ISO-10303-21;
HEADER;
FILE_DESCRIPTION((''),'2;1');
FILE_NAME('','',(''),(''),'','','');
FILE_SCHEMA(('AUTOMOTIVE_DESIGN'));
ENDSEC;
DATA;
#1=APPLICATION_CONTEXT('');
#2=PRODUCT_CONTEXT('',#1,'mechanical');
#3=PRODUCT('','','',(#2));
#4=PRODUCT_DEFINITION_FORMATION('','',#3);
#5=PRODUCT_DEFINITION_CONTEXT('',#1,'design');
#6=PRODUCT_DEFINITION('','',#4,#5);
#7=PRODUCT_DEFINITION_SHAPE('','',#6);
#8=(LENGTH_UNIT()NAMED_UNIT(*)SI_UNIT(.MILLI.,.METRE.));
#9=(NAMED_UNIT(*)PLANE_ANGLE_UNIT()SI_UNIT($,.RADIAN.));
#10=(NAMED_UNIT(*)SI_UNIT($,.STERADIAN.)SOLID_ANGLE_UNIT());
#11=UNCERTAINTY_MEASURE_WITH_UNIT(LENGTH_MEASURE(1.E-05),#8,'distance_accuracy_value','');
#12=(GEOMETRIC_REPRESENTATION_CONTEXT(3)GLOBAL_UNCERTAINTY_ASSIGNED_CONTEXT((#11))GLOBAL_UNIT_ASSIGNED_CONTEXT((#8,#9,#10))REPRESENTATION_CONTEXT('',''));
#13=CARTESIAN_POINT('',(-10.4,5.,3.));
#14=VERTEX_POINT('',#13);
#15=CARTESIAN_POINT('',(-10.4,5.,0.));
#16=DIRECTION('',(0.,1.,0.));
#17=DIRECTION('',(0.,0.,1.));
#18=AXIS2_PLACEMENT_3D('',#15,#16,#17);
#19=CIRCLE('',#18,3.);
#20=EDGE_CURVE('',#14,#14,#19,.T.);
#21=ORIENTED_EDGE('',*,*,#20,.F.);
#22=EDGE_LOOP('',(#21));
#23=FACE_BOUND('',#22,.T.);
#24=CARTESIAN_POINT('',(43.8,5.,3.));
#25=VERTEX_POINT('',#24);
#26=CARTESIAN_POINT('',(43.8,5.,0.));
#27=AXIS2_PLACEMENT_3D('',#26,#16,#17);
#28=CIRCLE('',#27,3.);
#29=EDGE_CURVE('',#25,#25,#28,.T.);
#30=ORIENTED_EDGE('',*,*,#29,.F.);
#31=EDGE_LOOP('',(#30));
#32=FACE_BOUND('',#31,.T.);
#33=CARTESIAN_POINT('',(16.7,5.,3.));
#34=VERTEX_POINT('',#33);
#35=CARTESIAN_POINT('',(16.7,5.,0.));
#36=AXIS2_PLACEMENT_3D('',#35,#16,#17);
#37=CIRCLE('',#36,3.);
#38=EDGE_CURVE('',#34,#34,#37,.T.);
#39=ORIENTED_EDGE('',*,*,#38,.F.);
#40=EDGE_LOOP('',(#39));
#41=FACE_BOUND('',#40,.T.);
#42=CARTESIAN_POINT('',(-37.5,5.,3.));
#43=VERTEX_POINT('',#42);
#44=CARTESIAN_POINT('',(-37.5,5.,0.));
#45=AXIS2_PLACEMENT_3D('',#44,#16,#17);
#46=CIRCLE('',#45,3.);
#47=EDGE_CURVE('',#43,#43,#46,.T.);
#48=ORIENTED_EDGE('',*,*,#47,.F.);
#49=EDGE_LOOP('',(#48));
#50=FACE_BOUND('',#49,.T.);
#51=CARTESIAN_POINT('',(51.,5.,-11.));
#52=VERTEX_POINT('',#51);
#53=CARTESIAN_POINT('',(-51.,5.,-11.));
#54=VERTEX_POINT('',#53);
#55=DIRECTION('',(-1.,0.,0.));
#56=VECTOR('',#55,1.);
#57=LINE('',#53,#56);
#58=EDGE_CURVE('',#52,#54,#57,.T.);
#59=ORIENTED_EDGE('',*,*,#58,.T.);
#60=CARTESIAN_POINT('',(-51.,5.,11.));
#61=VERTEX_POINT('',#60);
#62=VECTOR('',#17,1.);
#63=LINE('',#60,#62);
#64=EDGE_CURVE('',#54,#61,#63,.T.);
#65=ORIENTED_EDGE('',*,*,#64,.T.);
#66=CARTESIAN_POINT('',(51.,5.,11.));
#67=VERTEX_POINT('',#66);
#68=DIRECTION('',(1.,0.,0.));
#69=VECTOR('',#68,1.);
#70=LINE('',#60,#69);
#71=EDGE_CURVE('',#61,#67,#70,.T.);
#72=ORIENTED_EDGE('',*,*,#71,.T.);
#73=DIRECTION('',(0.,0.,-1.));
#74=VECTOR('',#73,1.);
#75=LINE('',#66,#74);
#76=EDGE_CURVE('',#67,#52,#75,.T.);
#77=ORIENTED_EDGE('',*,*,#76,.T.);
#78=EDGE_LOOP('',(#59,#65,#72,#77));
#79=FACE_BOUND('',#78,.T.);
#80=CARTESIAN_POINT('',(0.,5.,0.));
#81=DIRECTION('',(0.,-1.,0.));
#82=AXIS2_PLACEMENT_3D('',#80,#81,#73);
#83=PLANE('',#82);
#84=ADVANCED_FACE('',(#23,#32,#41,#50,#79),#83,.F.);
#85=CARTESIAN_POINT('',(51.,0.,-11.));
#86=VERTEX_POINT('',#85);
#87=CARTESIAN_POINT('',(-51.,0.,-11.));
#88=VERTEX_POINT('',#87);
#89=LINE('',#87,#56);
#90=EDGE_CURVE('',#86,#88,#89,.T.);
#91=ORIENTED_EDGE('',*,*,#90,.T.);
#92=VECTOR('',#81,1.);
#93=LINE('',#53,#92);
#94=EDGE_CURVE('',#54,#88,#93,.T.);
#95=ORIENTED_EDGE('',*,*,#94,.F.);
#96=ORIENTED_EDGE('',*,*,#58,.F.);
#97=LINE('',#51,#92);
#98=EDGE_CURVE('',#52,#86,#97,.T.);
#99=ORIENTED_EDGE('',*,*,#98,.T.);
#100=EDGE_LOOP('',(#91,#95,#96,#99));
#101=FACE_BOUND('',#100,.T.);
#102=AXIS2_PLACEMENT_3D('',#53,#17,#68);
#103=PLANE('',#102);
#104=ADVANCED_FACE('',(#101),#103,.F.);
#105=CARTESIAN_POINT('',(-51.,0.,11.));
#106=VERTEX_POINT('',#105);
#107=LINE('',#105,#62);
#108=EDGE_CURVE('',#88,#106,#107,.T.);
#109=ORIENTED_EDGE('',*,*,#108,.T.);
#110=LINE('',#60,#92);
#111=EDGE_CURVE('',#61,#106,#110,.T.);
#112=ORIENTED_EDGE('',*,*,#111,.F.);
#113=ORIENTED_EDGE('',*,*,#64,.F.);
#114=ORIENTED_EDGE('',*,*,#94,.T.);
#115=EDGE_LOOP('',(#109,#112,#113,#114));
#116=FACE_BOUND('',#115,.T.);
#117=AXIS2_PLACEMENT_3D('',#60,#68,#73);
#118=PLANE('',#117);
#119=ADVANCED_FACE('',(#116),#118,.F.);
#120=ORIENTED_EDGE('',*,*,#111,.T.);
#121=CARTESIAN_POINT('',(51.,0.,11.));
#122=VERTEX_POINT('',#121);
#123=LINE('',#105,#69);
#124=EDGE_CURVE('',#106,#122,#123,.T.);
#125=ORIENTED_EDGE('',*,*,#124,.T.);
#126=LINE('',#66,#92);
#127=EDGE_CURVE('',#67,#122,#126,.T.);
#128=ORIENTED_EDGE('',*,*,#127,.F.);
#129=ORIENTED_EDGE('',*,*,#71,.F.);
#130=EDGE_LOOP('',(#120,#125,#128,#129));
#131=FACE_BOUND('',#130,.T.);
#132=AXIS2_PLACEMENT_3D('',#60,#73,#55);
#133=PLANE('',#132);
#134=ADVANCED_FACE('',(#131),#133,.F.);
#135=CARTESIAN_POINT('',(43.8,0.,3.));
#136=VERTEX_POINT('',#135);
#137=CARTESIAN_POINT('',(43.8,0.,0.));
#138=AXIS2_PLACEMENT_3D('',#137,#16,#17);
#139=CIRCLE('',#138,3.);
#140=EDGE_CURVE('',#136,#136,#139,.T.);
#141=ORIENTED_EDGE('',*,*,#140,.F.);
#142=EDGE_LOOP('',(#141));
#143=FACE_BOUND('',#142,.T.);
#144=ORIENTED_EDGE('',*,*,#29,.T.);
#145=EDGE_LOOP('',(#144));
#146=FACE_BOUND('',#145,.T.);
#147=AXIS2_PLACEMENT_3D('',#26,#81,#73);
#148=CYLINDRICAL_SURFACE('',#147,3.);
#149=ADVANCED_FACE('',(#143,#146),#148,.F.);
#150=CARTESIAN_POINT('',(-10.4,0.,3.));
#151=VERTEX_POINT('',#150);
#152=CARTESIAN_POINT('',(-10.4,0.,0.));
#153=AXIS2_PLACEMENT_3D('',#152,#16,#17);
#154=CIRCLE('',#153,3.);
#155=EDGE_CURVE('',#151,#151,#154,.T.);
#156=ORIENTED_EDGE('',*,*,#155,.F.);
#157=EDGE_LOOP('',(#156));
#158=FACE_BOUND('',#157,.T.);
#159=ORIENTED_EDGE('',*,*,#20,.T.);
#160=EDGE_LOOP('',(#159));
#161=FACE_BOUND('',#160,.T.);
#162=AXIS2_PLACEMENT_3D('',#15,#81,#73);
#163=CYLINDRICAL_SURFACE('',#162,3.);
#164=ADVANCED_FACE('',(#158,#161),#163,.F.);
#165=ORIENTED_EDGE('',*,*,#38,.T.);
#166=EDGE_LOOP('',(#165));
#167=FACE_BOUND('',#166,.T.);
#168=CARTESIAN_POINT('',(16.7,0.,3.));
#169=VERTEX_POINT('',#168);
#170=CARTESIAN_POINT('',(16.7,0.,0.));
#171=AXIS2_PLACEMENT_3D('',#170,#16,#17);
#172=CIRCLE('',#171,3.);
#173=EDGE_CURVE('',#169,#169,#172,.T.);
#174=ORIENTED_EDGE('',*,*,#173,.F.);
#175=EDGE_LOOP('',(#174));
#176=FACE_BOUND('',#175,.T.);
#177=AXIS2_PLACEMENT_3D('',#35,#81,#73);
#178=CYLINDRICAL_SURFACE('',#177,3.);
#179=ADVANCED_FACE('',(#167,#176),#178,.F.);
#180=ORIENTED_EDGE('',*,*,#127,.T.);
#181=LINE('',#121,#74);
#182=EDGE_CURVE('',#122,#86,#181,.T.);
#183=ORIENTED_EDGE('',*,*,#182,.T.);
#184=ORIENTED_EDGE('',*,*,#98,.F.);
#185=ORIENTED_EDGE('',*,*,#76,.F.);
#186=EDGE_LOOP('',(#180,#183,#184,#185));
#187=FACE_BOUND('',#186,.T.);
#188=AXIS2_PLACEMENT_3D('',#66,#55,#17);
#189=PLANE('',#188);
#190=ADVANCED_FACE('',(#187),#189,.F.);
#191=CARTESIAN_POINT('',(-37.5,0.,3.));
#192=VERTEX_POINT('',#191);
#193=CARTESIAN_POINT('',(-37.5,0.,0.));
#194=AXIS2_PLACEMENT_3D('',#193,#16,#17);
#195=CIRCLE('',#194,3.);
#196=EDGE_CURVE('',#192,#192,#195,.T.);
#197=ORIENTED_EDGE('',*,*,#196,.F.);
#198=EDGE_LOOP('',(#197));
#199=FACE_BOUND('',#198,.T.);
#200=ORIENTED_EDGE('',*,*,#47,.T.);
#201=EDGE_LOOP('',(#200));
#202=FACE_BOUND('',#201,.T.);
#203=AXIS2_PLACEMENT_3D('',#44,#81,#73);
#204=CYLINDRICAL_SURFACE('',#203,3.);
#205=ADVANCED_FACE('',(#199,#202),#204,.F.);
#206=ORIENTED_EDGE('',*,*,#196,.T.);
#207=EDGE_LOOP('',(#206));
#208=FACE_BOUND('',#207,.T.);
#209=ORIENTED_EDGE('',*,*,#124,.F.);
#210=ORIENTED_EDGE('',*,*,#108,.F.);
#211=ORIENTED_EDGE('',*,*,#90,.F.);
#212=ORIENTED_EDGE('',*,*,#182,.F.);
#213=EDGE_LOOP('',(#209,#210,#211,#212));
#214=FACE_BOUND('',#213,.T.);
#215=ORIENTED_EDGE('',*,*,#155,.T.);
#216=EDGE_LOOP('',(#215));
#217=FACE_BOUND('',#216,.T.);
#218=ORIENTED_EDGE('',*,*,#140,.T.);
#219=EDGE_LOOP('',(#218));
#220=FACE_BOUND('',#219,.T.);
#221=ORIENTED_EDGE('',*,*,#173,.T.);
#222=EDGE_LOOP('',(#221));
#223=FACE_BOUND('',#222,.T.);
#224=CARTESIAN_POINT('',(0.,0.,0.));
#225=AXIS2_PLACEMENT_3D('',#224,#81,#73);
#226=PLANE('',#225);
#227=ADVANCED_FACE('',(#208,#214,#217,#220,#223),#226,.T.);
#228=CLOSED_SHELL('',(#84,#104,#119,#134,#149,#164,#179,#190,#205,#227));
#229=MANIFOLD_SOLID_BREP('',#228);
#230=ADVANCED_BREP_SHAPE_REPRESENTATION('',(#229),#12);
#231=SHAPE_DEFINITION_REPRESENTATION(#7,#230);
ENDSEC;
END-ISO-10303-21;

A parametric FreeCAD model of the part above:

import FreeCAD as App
import Part
import Sketcher

V = App.Vector


def add_polygon(sketch, points):
    """Adds a closed chain of lines whose ends are joined by coincident constraints."""
    first, n = sketch.GeometryCount, len(points)
    for a, b in zip(points, points[1:] + points[:1]):
        sketch.addGeometry(Part.LineSegment(App.Vector(*a, 0), App.Vector(*b, 0)), False)
    for i in range(n):
        sketch.addConstraint(Sketcher.Constraint("Coincident", first + i, 2, first + (i + 1) % n, 1))

doc = App.newDocument("Part")
body = doc.addObject("PartDesign::Body", "Body")

# Sketch on XZ plane
sketch1 = doc.addObject("Sketcher::SketchObject", "Sketch")
body.addObject(sketch1)
sketch1.AttachmentSupport = (doc.XZ_Plane, [""])
sketch1.MapMode = "FlatFace"
add_polygon(sketch1, [(-51, -11), (-51, 11), (51, 11), (51, -11)])  # lines 0-3
sketch1.addGeometry(Part.Circle(V(-37.5, 0, 0), V(0, 0, 1), 3), False)  # 4
sketch1.addGeometry(Part.Circle(V(-10.4, 0, 0), V(0, 0, 1), 3), False)  # 5
sketch1.addGeometry(Part.Circle(V(16.7, 0, 0), V(0, 0, 1), 3), False)  # 6
sketch1.addGeometry(Part.Circle(V(43.8, 0, 0), V(0, 0, 1), 3), False)  # 7
sketch1.addConstraint([
    Sketcher.Constraint("Vertical", 0),
    Sketcher.Constraint("Horizontal", 1),
    Sketcher.Constraint("Vertical", 2),
    Sketcher.Constraint("Horizontal", 3),
    Sketcher.Constraint("Equal", 4, 5),
    Sketcher.Constraint("Equal", 5, 6),
    Sketcher.Constraint("Equal", 6, 7),
    Sketcher.Constraint("Symmetric", 0, 2, 2, 2, -1, 1),
    Sketcher.Constraint("PointOnObject", 4, 3, -1),
    Sketcher.Constraint("PointOnObject", 5, 3, -1),
    Sketcher.Constraint("PointOnObject", 6, 3, -1),
    Sketcher.Constraint("PointOnObject", 7, 3, -1),
    Sketcher.Constraint("Diameter", 4, 6.0),
    Sketcher.Constraint("DistanceX", 1, 1, 1, 2, 102.0),
    Sketcher.Constraint("DistanceY", 0, 1, 0, 2, 22.0),
    Sketcher.Constraint("DistanceX", 4, 3, -1, 1, 37.5),
    Sketcher.Constraint("DistanceX", 5, 3, -1, 1, 10.4),
    Sketcher.Constraint("DistanceX", -1, 1, 6, 3, 16.7),
    Sketcher.Constraint("DistanceX", -1, 1, 7, 3, 43.8),
])
pad1 = doc.addObject("PartDesign::Pad", "Pad")
body.addObject(pad1)
pad1.Profile = sketch1
pad1.Length = 5
pad1.Reversed = True

doc.recompute()
